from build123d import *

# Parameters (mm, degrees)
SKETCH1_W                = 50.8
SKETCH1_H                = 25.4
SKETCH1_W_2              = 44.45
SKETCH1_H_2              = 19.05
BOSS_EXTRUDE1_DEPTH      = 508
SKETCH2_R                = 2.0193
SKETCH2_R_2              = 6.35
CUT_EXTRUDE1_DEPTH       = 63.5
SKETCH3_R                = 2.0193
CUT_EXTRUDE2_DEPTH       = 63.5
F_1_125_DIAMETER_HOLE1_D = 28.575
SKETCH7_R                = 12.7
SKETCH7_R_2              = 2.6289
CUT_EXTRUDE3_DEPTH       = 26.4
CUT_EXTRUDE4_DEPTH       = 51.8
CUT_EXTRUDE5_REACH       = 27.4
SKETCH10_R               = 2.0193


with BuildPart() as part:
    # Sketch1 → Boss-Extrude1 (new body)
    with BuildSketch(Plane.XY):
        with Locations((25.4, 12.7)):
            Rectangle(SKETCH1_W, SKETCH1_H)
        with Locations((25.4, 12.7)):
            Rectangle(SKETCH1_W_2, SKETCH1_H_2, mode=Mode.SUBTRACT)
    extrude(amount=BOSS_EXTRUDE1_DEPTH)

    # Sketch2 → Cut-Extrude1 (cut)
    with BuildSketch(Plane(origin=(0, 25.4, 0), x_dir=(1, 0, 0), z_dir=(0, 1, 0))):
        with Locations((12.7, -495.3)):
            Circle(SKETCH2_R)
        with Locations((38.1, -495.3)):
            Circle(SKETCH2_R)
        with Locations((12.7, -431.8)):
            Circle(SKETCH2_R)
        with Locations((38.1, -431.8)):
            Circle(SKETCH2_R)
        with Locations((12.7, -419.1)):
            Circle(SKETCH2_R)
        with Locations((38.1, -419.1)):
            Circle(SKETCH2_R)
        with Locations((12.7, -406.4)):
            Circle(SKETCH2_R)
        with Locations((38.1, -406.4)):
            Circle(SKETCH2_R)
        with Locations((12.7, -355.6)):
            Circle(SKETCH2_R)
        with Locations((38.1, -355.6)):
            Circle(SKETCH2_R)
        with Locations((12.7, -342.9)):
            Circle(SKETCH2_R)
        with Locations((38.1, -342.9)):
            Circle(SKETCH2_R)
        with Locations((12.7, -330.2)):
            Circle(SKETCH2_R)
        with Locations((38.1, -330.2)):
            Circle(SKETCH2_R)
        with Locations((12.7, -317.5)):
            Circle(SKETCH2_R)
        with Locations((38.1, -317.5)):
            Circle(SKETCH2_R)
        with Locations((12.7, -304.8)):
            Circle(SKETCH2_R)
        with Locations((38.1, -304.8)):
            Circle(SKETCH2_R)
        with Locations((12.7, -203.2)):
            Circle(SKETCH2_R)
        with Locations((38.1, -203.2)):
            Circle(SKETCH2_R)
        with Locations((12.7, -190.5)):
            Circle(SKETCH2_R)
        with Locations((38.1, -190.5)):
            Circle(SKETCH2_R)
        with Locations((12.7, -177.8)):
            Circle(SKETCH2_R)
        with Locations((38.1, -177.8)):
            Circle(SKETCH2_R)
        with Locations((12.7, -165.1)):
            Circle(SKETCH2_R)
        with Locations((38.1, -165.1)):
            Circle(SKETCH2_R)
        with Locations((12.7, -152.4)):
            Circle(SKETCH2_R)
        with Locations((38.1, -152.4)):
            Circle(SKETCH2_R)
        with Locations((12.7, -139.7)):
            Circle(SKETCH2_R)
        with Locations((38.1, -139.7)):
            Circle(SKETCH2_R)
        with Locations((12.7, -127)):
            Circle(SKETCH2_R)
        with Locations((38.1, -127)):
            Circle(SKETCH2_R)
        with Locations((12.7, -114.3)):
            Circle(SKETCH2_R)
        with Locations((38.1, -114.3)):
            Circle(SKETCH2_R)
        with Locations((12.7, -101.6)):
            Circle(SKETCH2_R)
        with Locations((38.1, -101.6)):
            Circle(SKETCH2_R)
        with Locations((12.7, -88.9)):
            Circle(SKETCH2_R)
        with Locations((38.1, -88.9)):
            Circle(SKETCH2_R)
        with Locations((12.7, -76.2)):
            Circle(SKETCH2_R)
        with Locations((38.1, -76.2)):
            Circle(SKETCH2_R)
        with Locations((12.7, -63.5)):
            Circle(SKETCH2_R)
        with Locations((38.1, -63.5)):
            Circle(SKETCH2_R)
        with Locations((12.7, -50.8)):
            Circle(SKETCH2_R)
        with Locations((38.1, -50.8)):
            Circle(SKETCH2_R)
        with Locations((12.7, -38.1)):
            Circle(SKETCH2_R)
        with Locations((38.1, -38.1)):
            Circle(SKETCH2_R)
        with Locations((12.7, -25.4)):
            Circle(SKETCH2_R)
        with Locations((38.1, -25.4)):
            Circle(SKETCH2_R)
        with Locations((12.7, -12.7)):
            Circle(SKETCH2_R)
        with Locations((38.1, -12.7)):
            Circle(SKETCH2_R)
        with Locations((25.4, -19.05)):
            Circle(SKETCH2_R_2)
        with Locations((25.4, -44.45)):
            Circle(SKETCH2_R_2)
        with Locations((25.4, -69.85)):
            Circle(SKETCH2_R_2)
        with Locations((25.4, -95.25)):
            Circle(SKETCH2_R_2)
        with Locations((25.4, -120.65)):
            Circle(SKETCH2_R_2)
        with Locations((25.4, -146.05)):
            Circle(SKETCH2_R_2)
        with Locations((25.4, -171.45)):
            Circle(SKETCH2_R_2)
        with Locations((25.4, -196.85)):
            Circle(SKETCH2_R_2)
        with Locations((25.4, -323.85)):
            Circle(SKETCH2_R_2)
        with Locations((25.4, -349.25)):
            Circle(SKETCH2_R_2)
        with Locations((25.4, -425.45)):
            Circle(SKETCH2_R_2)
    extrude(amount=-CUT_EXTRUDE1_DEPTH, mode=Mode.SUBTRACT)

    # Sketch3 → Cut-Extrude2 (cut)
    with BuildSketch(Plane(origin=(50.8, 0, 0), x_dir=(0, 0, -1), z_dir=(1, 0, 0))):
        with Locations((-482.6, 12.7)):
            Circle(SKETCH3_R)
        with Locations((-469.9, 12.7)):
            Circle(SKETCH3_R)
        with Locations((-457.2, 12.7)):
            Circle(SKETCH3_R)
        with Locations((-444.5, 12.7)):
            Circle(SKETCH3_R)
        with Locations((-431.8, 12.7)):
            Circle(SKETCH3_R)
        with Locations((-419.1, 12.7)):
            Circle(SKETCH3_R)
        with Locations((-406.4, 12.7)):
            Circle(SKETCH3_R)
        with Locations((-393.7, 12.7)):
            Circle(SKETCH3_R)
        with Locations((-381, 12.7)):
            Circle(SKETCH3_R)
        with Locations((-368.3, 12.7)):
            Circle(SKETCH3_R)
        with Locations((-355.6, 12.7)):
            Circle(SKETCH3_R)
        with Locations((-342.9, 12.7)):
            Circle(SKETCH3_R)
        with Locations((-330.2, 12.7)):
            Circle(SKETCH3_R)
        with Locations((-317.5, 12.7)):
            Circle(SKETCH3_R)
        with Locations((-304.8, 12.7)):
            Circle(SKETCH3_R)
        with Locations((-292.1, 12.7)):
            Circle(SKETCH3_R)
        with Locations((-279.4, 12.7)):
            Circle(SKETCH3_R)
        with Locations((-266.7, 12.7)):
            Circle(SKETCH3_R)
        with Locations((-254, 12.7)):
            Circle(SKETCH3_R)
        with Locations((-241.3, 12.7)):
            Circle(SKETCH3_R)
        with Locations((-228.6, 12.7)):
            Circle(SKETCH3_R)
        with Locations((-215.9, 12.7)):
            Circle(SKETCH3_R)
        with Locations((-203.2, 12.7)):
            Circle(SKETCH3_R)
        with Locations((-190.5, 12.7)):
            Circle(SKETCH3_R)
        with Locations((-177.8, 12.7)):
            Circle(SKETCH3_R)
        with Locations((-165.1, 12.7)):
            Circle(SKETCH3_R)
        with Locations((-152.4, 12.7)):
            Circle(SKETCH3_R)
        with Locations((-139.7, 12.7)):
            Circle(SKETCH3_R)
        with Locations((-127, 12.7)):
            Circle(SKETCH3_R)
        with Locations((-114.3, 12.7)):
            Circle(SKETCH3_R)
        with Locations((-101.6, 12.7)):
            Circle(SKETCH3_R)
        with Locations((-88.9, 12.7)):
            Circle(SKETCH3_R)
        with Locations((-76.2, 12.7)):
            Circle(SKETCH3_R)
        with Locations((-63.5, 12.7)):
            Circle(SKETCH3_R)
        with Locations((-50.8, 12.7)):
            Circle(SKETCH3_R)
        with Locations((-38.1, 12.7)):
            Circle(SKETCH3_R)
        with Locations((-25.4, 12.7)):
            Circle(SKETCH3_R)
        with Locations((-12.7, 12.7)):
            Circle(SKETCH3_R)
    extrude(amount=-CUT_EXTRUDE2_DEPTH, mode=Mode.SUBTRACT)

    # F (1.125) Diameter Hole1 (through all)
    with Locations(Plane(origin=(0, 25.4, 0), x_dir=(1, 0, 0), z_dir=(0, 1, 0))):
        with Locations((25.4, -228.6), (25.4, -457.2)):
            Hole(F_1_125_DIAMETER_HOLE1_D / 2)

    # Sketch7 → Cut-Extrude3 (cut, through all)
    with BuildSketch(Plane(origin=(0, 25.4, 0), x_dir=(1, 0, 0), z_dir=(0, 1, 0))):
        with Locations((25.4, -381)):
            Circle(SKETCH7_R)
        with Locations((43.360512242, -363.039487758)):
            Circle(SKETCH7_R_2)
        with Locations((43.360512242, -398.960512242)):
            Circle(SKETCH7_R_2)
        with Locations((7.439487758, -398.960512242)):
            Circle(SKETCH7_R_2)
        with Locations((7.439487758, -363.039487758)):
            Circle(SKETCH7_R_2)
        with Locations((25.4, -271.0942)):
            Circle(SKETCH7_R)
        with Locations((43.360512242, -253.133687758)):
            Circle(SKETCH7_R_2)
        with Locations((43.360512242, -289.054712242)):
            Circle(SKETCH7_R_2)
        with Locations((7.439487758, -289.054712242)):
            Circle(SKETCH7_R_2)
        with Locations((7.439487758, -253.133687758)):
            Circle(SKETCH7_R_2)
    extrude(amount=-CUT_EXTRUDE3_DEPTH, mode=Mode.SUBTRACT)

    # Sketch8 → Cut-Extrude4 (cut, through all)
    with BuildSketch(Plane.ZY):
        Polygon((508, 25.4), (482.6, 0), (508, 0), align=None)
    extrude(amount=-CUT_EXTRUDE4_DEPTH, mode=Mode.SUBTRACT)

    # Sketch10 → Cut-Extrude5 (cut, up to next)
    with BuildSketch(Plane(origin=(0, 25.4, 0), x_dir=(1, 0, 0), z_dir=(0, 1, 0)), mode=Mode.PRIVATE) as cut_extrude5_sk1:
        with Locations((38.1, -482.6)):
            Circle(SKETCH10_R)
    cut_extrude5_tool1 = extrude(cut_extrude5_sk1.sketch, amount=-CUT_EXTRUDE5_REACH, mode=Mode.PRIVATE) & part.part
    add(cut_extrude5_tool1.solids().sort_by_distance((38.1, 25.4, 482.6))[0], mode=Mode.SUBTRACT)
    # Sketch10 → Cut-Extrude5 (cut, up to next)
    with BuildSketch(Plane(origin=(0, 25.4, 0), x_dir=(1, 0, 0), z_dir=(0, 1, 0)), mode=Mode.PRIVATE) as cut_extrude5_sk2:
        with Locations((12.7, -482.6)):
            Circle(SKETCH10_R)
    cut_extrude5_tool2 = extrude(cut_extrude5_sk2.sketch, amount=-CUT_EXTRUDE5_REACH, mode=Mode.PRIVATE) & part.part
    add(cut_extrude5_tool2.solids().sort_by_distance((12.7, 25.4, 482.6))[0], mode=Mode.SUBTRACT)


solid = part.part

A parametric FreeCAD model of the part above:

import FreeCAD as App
import Part
import Sketcher
Q = App.Units.Quantity

doc = App.newDocument("Part")
body = doc.addObject("PartDesign::Body", "Body")

sketch1 = body.newObject("Sketcher::SketchObject", "Sketch")
sketch1.AttachmentSupport = (doc.getObject("XY_Plane"), [""])
sketch1.MapMode = "FlatFace"
sketch1.addGeometry([
    Part.LineSegment(App.Vector(0, 25, 0), App.Vector(0, 0, 0)),
    Part.LineSegment(App.Vector(0, 0, 0), App.Vector(51, 0, 0)),
    Part.LineSegment(App.Vector(51, 0, 0), App.Vector(51, 25, 0)),
    Part.LineSegment(App.Vector(51, 25, 0), App.Vector(0, 25, 0)),
    Part.LineSegment(App.Vector(48, 3, 0), App.Vector(3, 3, 0)),
    Part.LineSegment(App.Vector(3, 3, 0), App.Vector(3, 22, 0)),
    Part.LineSegment(App.Vector(3, 22, 0), App.Vector(48, 22, 0)),
    Part.LineSegment(App.Vector(48, 22, 0), App.Vector(48, 3, 0)),
], False)
sketch1.addConstraint([
    Sketcher.Constraint("Coincident", 0, 2, 1, 1),
    Sketcher.Constraint("Coincident", 1, 2, 2, 1),
    Sketcher.Constraint("Coincident", 2, 2, 3, 1),
    Sketcher.Constraint("Coincident", 3, 2, 0, 1),
    Sketcher.Constraint("Coincident", 4, 2, 5, 1),
    Sketcher.Constraint("Coincident", 5, 2, 6, 1),
    Sketcher.Constraint("Coincident", 6, 2, 7, 1),
    Sketcher.Constraint("Coincident", 7, 2, 4, 1),
    Sketcher.Constraint("Vertical", 0),
    Sketcher.Constraint("Horizontal", 1),
    Sketcher.Constraint("Vertical", 2),
    Sketcher.Constraint("Horizontal", 3),
    Sketcher.Constraint("Horizontal", 4),
    Sketcher.Constraint("Vertical", 5),
    Sketcher.Constraint("Horizontal", 6),
    Sketcher.Constraint("Vertical", 7),
    Sketcher.Constraint("Coincident", 0, 2, -1, 1),
    Sketcher.Constraint("DistanceX", 1, 1, 1, 2, Q("2 in")),
    Sketcher.Constraint("DistanceY", 0, 2, 0, 1, Q("1 in")),
    Sketcher.Constraint("DistanceX", 4, 2, 4, 1, Q("1.75 in")),
    Sketcher.Constraint("DistanceY", 5, 1, 5, 2, Q("0.75 in")),
    Sketcher.Constraint("DistanceX", -1, 1, 4, 2, Q("0.125 in")),
    Sketcher.Constraint("DistanceY", -1, 1, 4, 2, Q("0.125 in")),
])
pad1 = body.newObject("PartDesign::Pad", "Pad")
pad1.Profile = sketch1
pad1.Length = Q("20 in")

sketch2 = body.newObject("Sketcher::SketchObject", "Sketch001")
sketch2.AttachmentSupport = (doc.getObject("XZ_Plane"), [""])
sketch2.MapMode = "FlatFace"
sketch2.AttachmentOffset = App.Placement(App.Vector(0, 0, -1 * 25.4), App.Rotation())
sketch2.addGeometry([
    Part.Circle(App.Vector(12.7, 495.3, 0), App.Vector(0, 0, 1), 2),
    Part.Circle(App.Vector(38.1, 495.3, 0), App.Vector(0, 0, 1), 2),
    Part.Circle(App.Vector(12.7, 431.8, 0), App.Vector(0, 0, 1), 2),
    Part.Circle(App.Vector(38.1, 431.8, 0), App.Vector(0, 0, 1), 2),
    Part.Circle(App.Vector(12.7, 419.1, 0), App.Vector(0, 0, 1), 2),
    Part.Circle(App.Vector(38.1, 419.1, 0), App.Vector(0, 0, 1), 2),
    Part.Circle(App.Vector(12.7, 406.4, 0), App.Vector(0, 0, 1), 2),
    Part.Circle(App.Vector(38.1, 406.4, 0), App.Vector(0, 0, 1), 2),
    Part.Circle(App.Vector(12.7, 355.6, 0), App.Vector(0, 0, 1), 2),
    Part.Circle(App.Vector(38.1, 355.6, 0), App.Vector(0, 0, 1), 2),
    Part.Circle(App.Vector(12.7, 342.9, 0), App.Vector(0, 0, 1), 2),
    Part.Circle(App.Vector(38.1, 342.9, 0), App.Vector(0, 0, 1), 2),
    Part.Circle(App.Vector(12.7, 330.2, 0), App.Vector(0, 0, 1), 2),
    Part.Circle(App.Vector(38.1, 330.2, 0), App.Vector(0, 0, 1), 2),
    Part.Circle(App.Vector(12.7, 317.5, 0), App.Vector(0, 0, 1), 2),
    Part.Circle(App.Vector(38.1, 317.5, 0), App.Vector(0, 0, 1), 2),
    Part.Circle(App.Vector(12.7, 304.8, 0), App.Vector(0, 0, 1), 2),
    Part.Circle(App.Vector(38.1, 304.8, 0), App.Vector(0, 0, 1), 2),
    Part.Circle(App.Vector(12.7, 203.2, 0), App.Vector(0, 0, 1), 2),
    Part.Circle(App.Vector(38.1, 203.2, 0), App.Vector(0, 0, 1), 2),
    Part.Circle(App.Vector(12.7, 190.5, 0), App.Vector(0, 0, 1), 2),
    Part.Circle(App.Vector(38.1, 190.5, 0), App.Vector(0, 0, 1), 2),
    Part.Circle(App.Vector(12.7, 177.8, 0), App.Vector(0, 0, 1), 2),
    Part.Circle(App.Vector(38.1, 177.8, 0), App.Vector(0, 0, 1), 2),
    Part.Circle(App.Vector(12.7, 165.1, 0), App.Vector(0, 0, 1), 2),
    Part.Circle(App.Vector(38.1, 165.1, 0), App.Vector(0, 0, 1), 2),
    Part.Circle(App.Vector(12.7, 152.4, 0), App.Vector(0, 0, 1), 2),
    Part.Circle(App.Vector(38.1, 152.4, 0), App.Vector(0, 0, 1), 2),
    Part.Circle(App.Vector(12.7, 139.7, 0), App.Vector(0, 0, 1), 2),
    Part.Circle(App.Vector(38.1, 139.7, 0), App.Vector(0, 0, 1), 2),
    Part.Circle(App.Vector(12.7, 127, 0), App.Vector(0, 0, 1), 2),
    Part.Circle(App.Vector(38.1, 127, 0), App.Vector(0, 0, 1), 2),
    Part.Circle(App.Vector(12.7, 114.3, 0), App.Vector(0, 0, 1), 2),
    Part.Circle(App.Vector(38.1, 114.3, 0), App.Vector(0, 0, 1), 2),
    Part.Circle(App.Vector(12.7, 101.6, 0), App.Vector(0, 0, 1), 2),
    Part.Circle(App.Vector(38.1, 101.6, 0), App.Vector(0, 0, 1), 2),
    Part.Circle(App.Vector(12.7, 88.9, 0), App.Vector(0, 0, 1), 2),
    Part.Circle(App.Vector(38.1, 88.9, 0), App.Vector(0, 0, 1), 2),
    Part.Circle(App.Vector(12.7, 76.2, 0), App.Vector(0, 0, 1), 2),
    Part.Circle(App.Vector(38.1, 76.2, 0), App.Vector(0, 0, 1), 2),
    Part.Circle(App.Vector(12.7, 63.5, 0), App.Vector(0, 0, 1), 2),
    Part.Circle(App.Vector(38.1, 63.5, 0), App.Vector(0, 0, 1), 2),
    Part.Circle(App.Vector(12.7, 50.8, 0), App.Vector(0, 0, 1), 2),
    Part.Circle(App.Vector(38.1, 50.8, 0), App.Vector(0, 0, 1), 2),
    Part.Circle(App.Vector(12.7, 38.1, 0), App.Vector(0, 0, 1), 2),
    Part.Circle(App.Vector(38.1, 38.1, 0), App.Vector(0, 0, 1), 2),
    Part.Circle(App.Vector(12.7, 25.4, 0), App.Vector(0, 0, 1), 2),
    Part.Circle(App.Vector(38.1, 25.4, 0), App.Vector(0, 0, 1), 2),
    Part.Circle(App.Vector(12.7, 12.7, 0), App.Vector(0, 0, 1), 2),
    Part.Circle(App.Vector(38.1, 12.7, 0), App.Vector(0, 0, 1), 2),
    Part.Circle(App.Vector(25.4, 19.1, 0), App.Vector(0, 0, 1), 6.3),
    Part.Circle(App.Vector(25.4, 44.5, 0), App.Vector(0, 0, 1), 6.3),
    Part.Circle(App.Vector(25.4, 69.8, 0), App.Vector(0, 0, 1), 6.3),
    Part.Circle(App.Vector(25.4, 95.2, 0), App.Vector(0, 0, 1), 6.3),
    Part.Circle(App.Vector(25.4, 120.7, 0), App.Vector(0, 0, 1), 6.3),
    Part.Circle(App.Vector(25.4, 146.1, 0), App.Vector(0, 0, 1), 6.3),
    Part.Circle(App.Vector(25.4, 171.4, 0), App.Vector(0, 0, 1), 6.3),
    Part.Circle(App.Vector(25.4, 196.8, 0), App.Vector(0, 0, 1), 6.3),
    Part.Circle(App.Vector(25.4, 323.9, 0), App.Vector(0, 0, 1), 6.3),
    Part.Circle(App.Vector(25.4, 349.2, 0), App.Vector(0, 0, 1), 6.3),
    Part.Circle(App.Vector(25.4, 425.4, 0), App.Vector(0, 0, 1), 6.3),
], False)
sketch2.addConstraint([
    Sketcher.Constraint("Equal", 0, 1),
    Sketcher.Constraint("Equal", 1, 2),
    Sketcher.Constraint("Equal", 2, 3),
    Sketcher.Constraint("Equal", 3, 4),
    Sketcher.Constraint("Equal", 4, 5),
    Sketcher.Constraint("Equal", 5, 6),
    Sketcher.Constraint("Equal", 6, 7),
    Sketcher.Constraint("Equal", 7, 8),
    Sketcher.Constraint("Equal", 8, 9),
    Sketcher.Constraint("Equal", 9, 10),
    Sketcher.Constraint("Equal", 10, 11),
    Sketcher.Constraint("Equal", 11, 12),
    Sketcher.Constraint("Equal", 12, 13),
    Sketcher.Constraint("Equal", 13, 14),
    Sketcher.Constraint("Equal", 14, 15),
    Sketcher.Constraint("Equal", 15, 16),
    Sketcher.Constraint("Equal", 16, 17),
    Sketcher.Constraint("Equal", 17, 18),
    Sketcher.Constraint("Equal", 18, 19),
    Sketcher.Constraint("Equal", 19, 20),
    Sketcher.Constraint("Equal", 20, 21),
    Sketcher.Constraint("Equal", 21, 22),
    Sketcher.Constraint("Equal", 22, 23),
    Sketcher.Constraint("Equal", 23, 24),
    Sketcher.Constraint("Equal", 24, 25),
    Sketcher.Constraint("Equal", 25, 26),
    Sketcher.Constraint("Equal", 26, 27),
    Sketcher.Constraint("Equal", 27, 28),
    Sketcher.Constraint("Equal", 28, 29),
    Sketcher.Constraint("Equal", 29, 30),
    Sketcher.Constraint("Equal", 30, 31),
    Sketcher.Constraint("Equal", 31, 32),
    Sketcher.Constraint("Equal", 32, 33),
    Sketcher.Constraint("Equal", 33, 34),
    Sketcher.Constraint("Equal", 34, 35),
    Sketcher.Constraint("Equal", 35, 36),
    Sketcher.Constraint("Equal", 36, 37),
    Sketcher.Constraint("Equal", 37, 38),
    Sketcher.Constraint("Equal", 38, 39),
    Sketcher.Constraint("Equal", 39, 40),
    Sketcher.Constraint("Equal", 40, 41),
    Sketcher.Constraint("Equal", 41, 42),
    Sketcher.Constraint("Equal", 42, 43),
    Sketcher.Constraint("Equal", 43, 44),
    Sketcher.Constraint("Equal", 44, 45),
    Sketcher.Constraint("Equal", 45, 46),
    Sketcher.Constraint("Equal", 46, 47),
    Sketcher.Constraint("Equal", 47, 48),
    Sketcher.Constraint("Equal", 48, 49),
    Sketcher.Constraint("Equal", 50, 51),
    Sketcher.Constraint("Equal", 51, 52),
    Sketcher.Constraint("Equal", 52, 53),
    Sketcher.Constraint("Equal", 53, 54),
    Sketcher.Constraint("Equal", 54, 55),
    Sketcher.Constraint("Equal", 55, 56),
    Sketcher.Constraint("Equal", 56, 57),
    Sketcher.Constraint("Equal", 57, 58),
    Sketcher.Constraint("Equal", 58, 59),
    Sketcher.Constraint("Equal", 59, 60),
    Sketcher.Constraint("Horizontal", 0, 3, 1, 3),
    Sketcher.Constraint("Horizontal", 2, 3, 3, 3),
    Sketcher.Constraint("Horizontal", 4, 3, 5, 3),
    Sketcher.Constraint("Horizontal", 6, 3, 7, 3),
    Sketcher.Constraint("Horizontal", 8, 3, 9, 3),
    Sketcher.Constraint("Horizontal", 10, 3, 11, 3),
    Sketcher.Constraint("Horizontal", 12, 3, 13, 3),
    Sketcher.Constraint("Horizontal", 14, 3, 15, 3),
    Sketcher.Constraint("Horizontal", 16, 3, 17, 3),
    Sketcher.Constraint("Horizontal", 18, 3, 19, 3),
    Sketcher.Constraint("Horizontal", 20, 3, 21, 3),
    Sketcher.Constraint("Horizontal", 22, 3, 23, 3),
    Sketcher.Constraint("Horizontal", 24, 3, 25, 3),
    Sketcher.Constraint("Horizontal", 26, 3, 27, 3),
    Sketcher.Constraint("Horizontal", 28, 3, 29, 3),
    Sketcher.Constraint("Horizontal", 30, 3, 31, 3),
    Sketcher.Constraint("Horizontal", 32, 3, 33, 3),
    Sketcher.Constraint("Horizontal", 34, 3, 35, 3),
    Sketcher.Constraint("Horizontal", 36, 3, 37, 3),
    Sketcher.Constraint("Horizontal", 38, 3, 39, 3),
    Sketcher.Constraint("Horizontal", 40, 3, 41, 3),
    Sketcher.Constraint("Horizontal", 42, 3, 43, 3),
    Sketcher.Constraint("Horizontal", 44, 3, 45, 3),
    Sketcher.Constraint("Horizontal", 46, 3, 47, 3),
    Sketcher.Constraint("Horizontal", 48, 3, 49, 3),
    Sketcher.Constraint("Vertical", 0, 3, 2, 3),
    Sketcher.Constraint("Vertical", 1, 3, 3, 3),
    Sketcher.Constraint("Vertical", 2, 3, 4, 3),
    Sketcher.Constraint("Vertical", 3, 3, 5, 3),
    Sketcher.Constraint("Vertical", 4, 3, 6, 3),
    Sketcher.Constraint("Vertical", 5, 3, 7, 3),
    Sketcher.Constraint("Vertical", 6, 3, 8, 3),
    Sketcher.Constraint("Vertical", 7, 3, 9, 3),
    Sketcher.Constraint("Vertical", 8, 3, 10, 3),
    Sketcher.Constraint("Vertical", 9, 3, 11, 3),
    Sketcher.Constraint("Vertical", 10, 3, 12, 3),
    Sketcher.Constraint("Vertical", 11, 3, 13, 3),
    Sketcher.Constraint("Vertical", 12, 3, 14, 3),
    Sketcher.Constraint("Vertical", 13, 3, 15, 3),
    Sketcher.Constraint("Vertical", 14, 3, 16, 3),
    Sketcher.Constraint("Vertical", 15, 3, 17, 3),
    Sketcher.Constraint("Vertical", 16, 3, 18, 3),
    Sketcher.Constraint("Vertical", 17, 3, 19, 3),
    Sketcher.Constraint("Vertical", 18, 3, 20, 3),
    Sketcher.Constraint("Vertical", 19, 3, 21, 3),
    Sketcher.Constraint("Vertical", 20, 3, 22, 3),
    Sketcher.Constraint("Vertical", 21, 3, 23, 3),
    Sketcher.Constraint("Vertical", 22, 3, 24, 3),
    Sketcher.Constraint("Vertical", 23, 3, 25, 3),
    Sketcher.Constraint("Vertical", 24, 3, 26, 3),
    Sketcher.Constraint("Vertical", 25, 3, 27, 3),
    Sketcher.Constraint("Vertical", 26, 3, 28, 3),
    Sketcher.Constraint("Vertical", 27, 3, 29, 3),
    Sketcher.Constraint("Vertical", 28, 3, 30, 3),
    Sketcher.Constraint("Vertical", 29, 3, 31, 3),
    Sketcher.Constraint("Vertical", 30, 3, 32, 3),
    Sketcher.Constraint("Vertical", 31, 3, 33, 3),
    Sketcher.Constraint("Vertical", 32, 3, 34, 3),
    Sketcher.Constraint("Vertical", 33, 3, 35, 3),
    Sketcher.Constraint("Vertical", 34, 3, 36, 3),
    Sketcher.Constraint("Vertical", 35, 3, 37, 3),
    Sketcher.Constraint("Vertical", 36, 3, 38, 3),
    Sketcher.Constraint("Vertical", 37, 3, 39, 3),
    Sketcher.Constraint("Vertical", 38, 3, 40, 3),
    Sketcher.Constraint("Vertical", 39, 3, 41, 3),
    Sketcher.Constraint("Vertical", 40, 3, 42, 3),
    Sketcher.Constraint("Vertical", 41, 3, 43, 3),
    Sketcher.Constraint("Vertical", 42, 3, 44, 3),
    Sketcher.Constraint("Vertical", 43, 3, 45, 3),
    Sketcher.Constraint("Vertical", 44, 3, 46, 3),
    Sketcher.Constraint("Vertical", 45, 3, 47, 3),
    Sketcher.Constraint("Vertical", 46, 3, 48, 3),
    Sketcher.Constraint("Vertical", 47, 3, 49, 3),
    Sketcher.Constraint("Vertical", 50, 3, 51, 3),
    Sketcher.Constraint("Vertical", 51, 3, 52, 3),
    Sketcher.Constraint("Vertical", 52, 3, 53, 3),
    Sketcher.Constraint("Vertical", 53, 3, 54, 3),
    Sketcher.Constraint("Vertical", 54, 3, 55, 3),
    Sketcher.Constraint("Vertical", 55, 3, 56, 3),
    Sketcher.Constraint("Vertical", 56, 3, 57, 3),
    Sketcher.Constraint("Vertical", 57, 3, 58, 3),
    Sketcher.Constraint("Vertical", 58, 3, 59, 3),
    Sketcher.Constraint("Vertical", 59, 3, 60, 3),
    Sketcher.Constraint("Diameter", 50, Q("0.5 in")),
    Sketcher.Constraint("Diameter", 0, Q("0.159 in")),
    Sketcher.Constraint("DistanceY", -1, 1, 2, 3, Q("17 in")),
    Sketcher.Constraint("DistanceY", -1, 1, 6, 3, Q("16 in")),
    Sketcher.Constraint("DistanceY", -1, 1, 8, 3, Q("14 in")),
    Sketcher.Constraint("DistanceY", -1, 1, 12, 3, Q("13 in")),
    Sketcher.Constraint("DistanceY", -1, 1, 16, 3, Q("12 in")),
    Sketcher.Constraint("DistanceY", -1, 1, 18, 3, Q("8 in")),
    Sketcher.Constraint("DistanceY", -1, 1, 22, 3, Q("7 in")),
    Sketcher.Constraint("DistanceY", -1, 1, 26, 3, Q("6 in")),
    Sketcher.Constraint("DistanceY", -1, 1, 30, 3, Q("5 in")),
    Sketcher.Constraint("DistanceY", -1, 1, 34, 3, Q("4 in")),
    Sketcher.Constraint("DistanceY", -1, 1, 38, 3, Q("3 in")),
    Sketcher.Constraint("DistanceY", -1, 1, 42, 3, Q("2 in")),
    Sketcher.Constraint("DistanceY", -1, 1, 46, 3, Q("1 in")),
    Sketcher.Constraint("DistanceX", -1, 1, 50, 3, Q("1 in")),
    Sketcher.Constraint("DistanceX", -1, 1, 0, 3, Q("0.5 in")),
    Sketcher.Constraint("DistanceY", -1, 1, 0, 3, Q("19.5 in")),
    Sketcher.Constraint("DistanceX", -1, 1, 1, 3, Q("1.5 in")),
    Sketcher.Constraint("DistanceY", -1, 1, 4, 3, Q("16.5 in")),
    Sketcher.Constraint("DistanceY", -1, 1, 10, 3, Q("13.5 in")),
    Sketcher.Constraint("DistanceY", -1, 1, 14, 3, Q("12.5 in")),
    Sketcher.Constraint("DistanceY", -1, 1, 20, 3, Q("7.5 in")),
    Sketcher.Constraint("DistanceY", -1, 1, 24, 3, Q("6.5 in")),
    Sketcher.Constraint("DistanceY", -1, 1, 28, 3, Q("5.5 in")),
    Sketcher.Constraint("DistanceY", -1, 1, 32, 3, Q("4.5 in")),
    Sketcher.Constraint("DistanceY", -1, 1, 36, 3, Q("3.5 in")),
    Sketcher.Constraint("DistanceY", -1, 1, 40, 3, Q("2.5 in")),
    Sketcher.Constraint("DistanceY", -1, 1, 44, 3, Q("1.5 in")),
    Sketcher.Constraint("DistanceY", -1, 1, 48, 3, Q("0.5 in")),
    Sketcher.Constraint("DistanceY", -1, 1, 50, 3, Q("0.75 in")),
    Sketcher.Constraint("DistanceY", -1, 1, 51, 3, Q("1.75 in")),
    Sketcher.Constraint("DistanceY", -1, 1, 52, 3, Q("2.75 in")),
    Sketcher.Constraint("DistanceY", -1, 1, 53, 3, Q("3.75 in")),
    Sketcher.Constraint("DistanceY", -1, 1, 54, 3, Q("4.75 in")),
    Sketcher.Constraint("DistanceY", -1, 1, 55, 3, Q("5.75 in")),
    Sketcher.Constraint("DistanceY", -1, 1, 56, 3, Q("6.75 in")),
    Sketcher.Constraint("DistanceY", -1, 1, 57, 3, Q("7.75 in")),
    Sketcher.Constraint("DistanceY", -1, 1, 58, 3, Q("12.75 in")),
    Sketcher.Constraint("DistanceY", -1, 1, 59, 3, Q("13.75 in")),
    Sketcher.Constraint("DistanceY", -1, 1, 60, 3, Q("16.75 in")),
])
pocket1 = body.newObject("PartDesign::Pocket", "Pocket")
pocket1.Profile = sketch2
pocket1.Length = Q("2.5 in")
pocket1.Reversed = True

sketch3 = body.newObject("Sketcher::SketchObject", "Sketch002")
sketch3.AttachmentSupport = (doc.getObject("YZ_Plane"), [""])
sketch3.MapMode = "FlatFace"
sketch3.AttachmentOffset = App.Placement(App.Vector(0, 0, 2 * 25.4), App.Rotation())
sketch3.addGeometry([
    Part.Circle(App.Vector(12.7, 482.6, 0), App.Vector(0, 0, 1), 2),
    Part.Circle(App.Vector(12.7, 469.9, 0), App.Vector(0, 0, 1), 2),
    Part.Circle(App.Vector(12.7, 457.2, 0), App.Vector(0, 0, 1), 2),
    Part.Circle(App.Vector(12.7, 444.5, 0), App.Vector(0, 0, 1), 2),
    Part.Circle(App.Vector(12.7, 431.8, 0), App.Vector(0, 0, 1), 2),
    Part.Circle(App.Vector(12.7, 419.1, 0), App.Vector(0, 0, 1), 2),
    Part.Circle(App.Vector(12.7, 406.4, 0), App.Vector(0, 0, 1), 2),
    Part.Circle(App.Vector(12.7, 393.7, 0), App.Vector(0, 0, 1), 2),
    Part.Circle(App.Vector(12.7, 381, 0), App.Vector(0, 0, 1), 2),
    Part.Circle(App.Vector(12.7, 368.3, 0), App.Vector(0, 0, 1), 2),
    Part.Circle(App.Vector(12.7, 355.6, 0), App.Vector(0, 0, 1), 2),
    Part.Circle(App.Vector(12.7, 342.9, 0), App.Vector(0, 0, 1), 2),
    Part.Circle(App.Vector(12.7, 330.2, 0), App.Vector(0, 0, 1), 2),
    Part.Circle(App.Vector(12.7, 317.5, 0), App.Vector(0, 0, 1), 2),
    Part.Circle(App.Vector(12.7, 304.8, 0), App.Vector(0, 0, 1), 2),
    Part.Circle(App.Vector(12.7, 292.1, 0), App.Vector(0, 0, 1), 2),
    Part.Circle(App.Vector(12.7, 279.4, 0), App.Vector(0, 0, 1), 2),
    Part.Circle(App.Vector(12.7, 266.7, 0), App.Vector(0, 0, 1), 2),
    Part.Circle(App.Vector(12.7, 254, 0), App.Vector(0, 0, 1), 2),
    Part.Circle(App.Vector(12.7, 241.3, 0), App.Vector(0, 0, 1), 2),
    Part.Circle(App.Vector(12.7, 228.6, 0), App.Vector(0, 0, 1), 2),
    Part.Circle(App.Vector(12.7, 215.9, 0), App.Vector(0, 0, 1), 2),
    Part.Circle(App.Vector(12.7, 203.2, 0), App.Vector(0, 0, 1), 2),
    Part.Circle(App.Vector(12.7, 190.5, 0), App.Vector(0, 0, 1), 2),
    Part.Circle(App.Vector(12.7, 177.8, 0), App.Vector(0, 0, 1), 2),
    Part.Circle(App.Vector(12.7, 165.1, 0), App.Vector(0, 0, 1), 2),
    Part.Circle(App.Vector(12.7, 152.4, 0), App.Vector(0, 0, 1), 2),
    Part.Circle(App.Vector(12.7, 139.7, 0), App.Vector(0, 0, 1), 2),
    Part.Circle(App.Vector(12.7, 127, 0), App.Vector(0, 0, 1), 2),
    Part.Circle(App.Vector(12.7, 114.3, 0), App.Vector(0, 0, 1), 2),
    Part.Circle(App.Vector(12.7, 101.6, 0), App.Vector(0, 0, 1), 2),
    Part.Circle(App.Vector(12.7, 88.9, 0), App.Vector(0, 0, 1), 2),
    Part.Circle(App.Vector(12.7, 76.2, 0), App.Vector(0, 0, 1), 2),
    Part.Circle(App.Vector(12.7, 63.5, 0), App.Vector(0, 0, 1), 2),
    Part.Circle(App.Vector(12.7, 50.8, 0), App.Vector(0, 0, 1), 2),
    Part.Circle(App.Vector(12.7, 38.1, 0), App.Vector(0, 0, 1), 2),
    Part.Circle(App.Vector(12.7, 25.4, 0), App.Vector(0, 0, 1), 2),
    Part.Circle(App.Vector(12.7, 12.7, 0), App.Vector(0, 0, 1), 2),
], False)
sketch3.addConstraint([
    Sketcher.Constraint("Equal", 0, 1),
    Sketcher.Constraint("Equal", 1, 2),
    Sketcher.Constraint("Equal", 2, 3),
    Sketcher.Constraint("Equal", 3, 4),
    Sketcher.Constraint("Equal", 4, 5),
    Sketcher.Constraint("Equal", 5, 6),
    Sketcher.Constraint("Equal", 6, 7),
    Sketcher.Constraint("Equal", 7, 8),
    Sketcher.Constraint("Equal", 8, 9),
    Sketcher.Constraint("Equal", 9, 10),
    Sketcher.Constraint("Equal", 10, 11),
    Sketcher.Constraint("Equal", 11, 12),
    Sketcher.Constraint("Equal", 12, 13),
    Sketcher.Constraint("Equal", 13, 14),
    Sketcher.Constraint("Equal", 14, 15),
    Sketcher.Constraint("Equal", 15, 16),
    Sketcher.Constraint("Equal", 16, 17),
    Sketcher.Constraint("Equal", 17, 18),
    Sketcher.Constraint("Equal", 18, 19),
    Sketcher.Constraint("Equal", 19, 20),
    Sketcher.Constraint("Equal", 20, 21),
    Sketcher.Constraint("Equal", 21, 22),
    Sketcher.Constraint("Equal", 22, 23),
    Sketcher.Constraint("Equal", 23, 24),
    Sketcher.Constraint("Equal", 24, 25),
    Sketcher.Constraint("Equal", 25, 26),
    Sketcher.Constraint("Equal", 26, 27),
    Sketcher.Constraint("Equal", 27, 28),
    Sketcher.Constraint("Equal", 28, 29),
    Sketcher.Constraint("Equal", 29, 30),
    Sketcher.Constraint("Equal", 30, 31),
    Sketcher.Constraint("Equal", 31, 32),
    Sketcher.Constraint("Equal", 32, 33),
    Sketcher.Constraint("Equal", 33, 34),
    Sketcher.Constraint("Equal", 34, 35),
    Sketcher.Constraint("Equal", 35, 36),
    Sketcher.Constraint("Equal", 36, 37),
    Sketcher.Constraint("Vertical", 0, 3, 1, 3),
    Sketcher.Constraint("Vertical", 1, 3, 2, 3),
    Sketcher.Constraint("Vertical", 2, 3, 3, 3),
    Sketcher.Constraint("Vertical", 3, 3, 4, 3),
    Sketcher.Constraint("Vertical", 4, 3, 5, 3),
    Sketcher.Constraint("Vertical", 5, 3, 6, 3),
    Sketcher.Constraint("Vertical", 6, 3, 7, 3),
    Sketcher.Constraint("Vertical", 7, 3, 8, 3),
    Sketcher.Constraint("Vertical", 8, 3, 9, 3),
    Sketcher.Constraint("Vertical", 9, 3, 10, 3),
    Sketcher.Constraint("Vertical", 10, 3, 11, 3),
    Sketcher.Constraint("Vertical", 11, 3, 12, 3),
    Sketcher.Constraint("Vertical", 12, 3, 13, 3),
    Sketcher.Constraint("Vertical", 13, 3, 14, 3),
    Sketcher.Constraint("Vertical", 14, 3, 15, 3),
    Sketcher.Constraint("Vertical", 15, 3, 16, 3),
    Sketcher.Constraint("Vertical", 16, 3, 17, 3),
    Sketcher.Constraint("Vertical", 17, 3, 18, 3),
    Sketcher.Constraint("Vertical", 18, 3, 19, 3),
    Sketcher.Constraint("Vertical", 19, 3, 20, 3),
    Sketcher.Constraint("Vertical", 20, 3, 21, 3),
    Sketcher.Constraint("Vertical", 21, 3, 22, 3),
    Sketcher.Constraint("Vertical", 22, 3, 23, 3),
    Sketcher.Constraint("Vertical", 23, 3, 24, 3),
    Sketcher.Constraint("Vertical", 24, 3, 25, 3),
    Sketcher.Constraint("Vertical", 25, 3, 26, 3),
    Sketcher.Constraint("Vertical", 26, 3, 27, 3),
    Sketcher.Constraint("Vertical", 27, 3, 28, 3),
    Sketcher.Constraint("Vertical", 28, 3, 29, 3),
    Sketcher.Constraint("Vertical", 29, 3, 30, 3),
    Sketcher.Constraint("Vertical", 30, 3, 31, 3),
    Sketcher.Constraint("Vertical", 31, 3, 32, 3),
    Sketcher.Constraint("Vertical", 32, 3, 33, 3),
    Sketcher.Constraint("Vertical", 33, 3, 34, 3),
    Sketcher.Constraint("Vertical", 34, 3, 35, 3),
    Sketcher.Constraint("Vertical", 35, 3, 36, 3),
    Sketcher.Constraint("Vertical", 36, 3, 37, 3),
    Sketcher.Constraint("Diameter", 0, Q("0.159 in")),
    Sketcher.Constraint("DistanceY", -1, 1, 0, 3, Q("19 in")),
    Sketcher.Constraint("DistanceY", -1, 1, 2, 3, Q("18 in")),
    Sketcher.Constraint("DistanceY", -1, 1, 4, 3, Q("17 in")),
    Sketcher.Constraint("DistanceY", -1, 1, 6, 3, Q("16 in")),
    Sketcher.Constraint("DistanceY", -1, 1, 8, 3, Q("15 in")),
    Sketcher.Constraint("DistanceY", -1, 1, 10, 3, Q("14 in")),
    Sketcher.Constraint("DistanceY", -1, 1, 12, 3, Q("13 in")),
    Sketcher.Constraint("DistanceY", -1, 1, 14, 3, Q("12 in")),
    Sketcher.Constraint("DistanceY", -1, 1, 16, 3, Q("11 in")),
    Sketcher.Constraint("DistanceY", -1, 1, 18, 3, Q("10 in")),
    Sketcher.Constraint("DistanceY", -1, 1, 20, 3, Q("9 in")),
    Sketcher.Constraint("DistanceY", -1, 1, 22, 3, Q("8 in")),
    Sketcher.Constraint("DistanceY", -1, 1, 24, 3, Q("7 in")),
    Sketcher.Constraint("DistanceY", -1, 1, 26, 3, Q("6 in")),
    Sketcher.Constraint("DistanceY", -1, 1, 28, 3, Q("5 in")),
    Sketcher.Constraint("DistanceY", -1, 1, 30, 3, Q("4 in")),
    Sketcher.Constraint("DistanceY", -1, 1, 32, 3, Q("3 in")),
    Sketcher.Constraint("DistanceY", -1, 1, 34, 3, Q("2 in")),
    Sketcher.Constraint("DistanceY", -1, 1, 36, 3, Q("1 in")),
    Sketcher.Constraint("DistanceY", 3, 3, 1, 3, Q("1 in")),
    Sketcher.Constraint("DistanceY", 5, 3, 3, 3, Q("1 in")),
    Sketcher.Constraint("DistanceY", 7, 3, 5, 3, Q("1 in")),
    Sketcher.Constraint("DistanceY", 9, 3, 7, 3, Q("1 in")),
    Sketcher.Constraint("DistanceY", 11, 3, 9, 3, Q("1 in")),
    Sketcher.Constraint("DistanceY", 13, 3, 11, 3, Q("1 in")),
    Sketcher.Constraint("DistanceY", 15, 3, 13, 3, Q("1 in")),
    Sketcher.Constraint("DistanceY", 17, 3, 15, 3, Q("1 in")),
    Sketcher.Constraint("DistanceY", 19, 3, 17, 3, Q("1 in")),
    Sketcher.Constraint("DistanceY", 21, 3, 19, 3, Q("1 in")),
    Sketcher.Constraint("DistanceY", 23, 3, 21, 3, Q("1 in")),
    Sketcher.Constraint("DistanceY", 25, 3, 23, 3, Q("1 in")),
    Sketcher.Constraint("DistanceY", 27, 3, 25, 3, Q("1 in")),
    Sketcher.Constraint("DistanceY", 29, 3, 27, 3, Q("1 in")),
    Sketcher.Constraint("DistanceY", 31, 3, 29, 3, Q("1 in")),
    Sketcher.Constraint("DistanceY", 33, 3, 31, 3, Q("1 in")),
    Sketcher.Constraint("DistanceY", 35, 3, 33, 3, Q("1 in")),
    Sketcher.Constraint("DistanceY", 37, 3, 35, 3, Q("1 in")),
    Sketcher.Constraint("DistanceX", -1, 1, 0, 3, Q("0.5 in")),
    Sketcher.Constraint("DistanceY", -1, 1, 1, 3, Q("18.5 in")),
])
pocket2 = body.newObject("PartDesign::Pocket", "Pocket001")
pocket2.Profile = sketch3
pocket2.Length = Q("2.5 in")

sketch4 = body.newObject("Sketcher::SketchObject", "Sketch003")
sketch4.AttachmentSupport = (doc.getObject("XZ_Plane"), [""])
sketch4.MapMode = "FlatFace"
sketch4.AttachmentOffset = App.Placement(App.Vector(0, 0, -1 * 25.4), App.Rotation())
sketch4.addGeometry([
    Part.Circle(App.Vector(25, 229, 0), App.Vector(0, 0, 1), 14),
    Part.Circle(App.Vector(25, 457, 0), App.Vector(0, 0, 1), 14),
], False)
sketch4.addConstraint([
    Sketcher.Constraint("Equal", 0, 1),
    Sketcher.Constraint("Vertical", 0, 3, 1, 3),
    Sketcher.Constraint("Diameter", 0, Q("1.125 in")),
    Sketcher.Constraint("DistanceX", -1, 1, 0, 3, Q("1 in")),
    Sketcher.Constraint("DistanceY", -1, 1, 0, 3, Q("9 in")),
    Sketcher.Constraint("DistanceY", -1, 1, 1, 3, Q("18 in")),
])
doc.recompute()
hole = body.newObject("PartDesign::Hole", "Hole")
hole.Profile = sketch4
hole.ThreadType = "None"
hole.Diameter = Q("1.125 in")
hole.DepthType = "ThroughAll"
hole.Reversed = True

sketch5 = body.newObject("Sketcher::SketchObject", "Sketch004")
sketch5.AttachmentSupport = (doc.getObject("XZ_Plane"), [""])
sketch5.MapMode = "FlatFace"
sketch5.AttachmentOffset = App.Placement(App.Vector(0, 0, -1 * 25.4), App.Rotation())
sketch5.addGeometry([
    Part.Circle(App.Vector(25.4, 381, 0), App.Vector(0, 0, 1), 12.7),
    Part.Circle(App.Vector(43.4, 363, 0), App.Vector(0, 0, 1), 2.6),
    Part.Circle(App.Vector(43.4, 399, 0), App.Vector(0, 0, 1), 2.6),
    Part.Circle(App.Vector(7.4, 399, 0), App.Vector(0, 0, 1), 2.6),
    Part.Circle(App.Vector(7.4, 363, 0), App.Vector(0, 0, 1), 2.6),
    Part.Circle(App.Vector(25.4, 271.1, 0), App.Vector(0, 0, 1), 12.7),
    Part.Circle(App.Vector(43.4, 253.1, 0), App.Vector(0, 0, 1), 2.6),
    Part.Circle(App.Vector(43.4, 289.1, 0), App.Vector(0, 0, 1), 2.6),
    Part.Circle(App.Vector(7.4, 289.1, 0), App.Vector(0, 0, 1), 2.6),
    Part.Circle(App.Vector(7.4, 253.1, 0), App.Vector(0, 0, 1), 2.6),
], False)
sketch5.addConstraint([
    Sketcher.Constraint("Equal", 1, 2),
    Sketcher.Constraint("Equal", 2, 3),
    Sketcher.Constraint("Equal", 3, 4),
    Sketcher.Constraint("Equal", 0, 5),
    Sketcher.Constraint("Equal", 4, 6),
    Sketcher.Constraint("Equal", 6, 7),
    Sketcher.Constraint("Equal", 7, 8),
    Sketcher.Constraint("Equal", 8, 9),
    Sketcher.Constraint("Horizontal", 2, 3, 3, 3),
    Sketcher.Constraint("Horizontal", 1, 3, 4, 3),
    Sketcher.Constraint("Horizontal", 7, 3, 8, 3),
    Sketcher.Constraint("Horizontal", 6, 3, 9, 3),
    Sketcher.Constraint("Vertical", 1, 3, 2, 3),
    Sketcher.Constraint("Vertical", 3, 3, 4, 3),
    Sketcher.Constraint("Vertical", 0, 3, 5, 3),
    Sketcher.Constraint("Vertical", 2, 3, 6, 3),
    Sketcher.Constraint("Vertical", 6, 3, 7, 3),
    Sketcher.Constraint("Vertical", 4, 3, 8, 3),
    Sketcher.Constraint("Vertical", 8, 3, 9, 3),
    Sketcher.Constraint("Diameter", 0, Q("1 in")),
    Sketcher.Constraint("Diameter", 1, Q("0.207 in")),
    Sketcher.Constraint("DistanceX", -1, 1, 0, 3, Q("1 in")),
    Sketcher.Constraint("DistanceY", -1, 1, 0, 3, Q("15 in")),
    Sketcher.Constraint("DistanceY", -1, 1, 5, 3, Q("10.673 in")),
    Sketcher.Constraint("DistanceY", 6, 3, 1, 3, Q("4.327 in")),
    Sketcher.Constraint("DistanceX", -1, 1, 1, 3, 43.360512),
    Sketcher.Constraint("DistanceY", -1, 1, 1, 3, 363.039488),
    Sketcher.Constraint("DistanceY", -1, 1, 2, 3, 398.960512),
    Sketcher.Constraint("DistanceX", -1, 1, 3, 3, 7.439488),
    Sketcher.Constraint("DistanceY", -1, 1, 7, 3, 289.054712),
])
pocket3 = body.newObject("PartDesign::Pocket", "Pocket002")
pocket3.Profile = sketch5
pocket3.Type = "ThroughAll"
pocket3.Reversed = True

sketch6 = body.newObject("Sketcher::SketchObject", "Sketch005")
sketch6.AttachmentSupport = (doc.getObject("YZ_Plane"), [""])
sketch6.MapMode = "FlatFace"
sketch6.addGeometry([
    Part.LineSegment(App.Vector(25, 508, 0), App.Vector(0, 483, 0)),
    Part.LineSegment(App.Vector(0, 483, 0), App.Vector(0, 508, 0)),
    Part.LineSegment(App.Vector(0, 508, 0), App.Vector(25, 508, 0)),
], False)
sketch6.addConstraint([
    Sketcher.Constraint("Coincident", 0, 2, 1, 1),
    Sketcher.Constraint("Coincident", 1, 2, 2, 1),
    Sketcher.Constraint("Coincident", 2, 2, 0, 1),
    Sketcher.Constraint("Vertical", 1),
    Sketcher.Constraint("Horizontal", 2),
    Sketcher.Constraint("PointOnObject", 0, 2, -2),
    Sketcher.Constraint("Equal", 2, 1),
    Sketcher.Constraint("DistanceX", 2, 1, 2, 2, Q("1 in")),
    Sketcher.Constraint("DistanceY", -1, 1, 0, 2, Q("19 in")),
])
pocket4 = body.newObject("PartDesign::Pocket", "Pocket003")
pocket4.Profile = sketch6
pocket4.Type = "ThroughAll"
pocket4.Reversed = True

sketch7 = body.newObject("Sketcher::SketchObject", "Sketch006")
sketch7.AttachmentSupport = (doc.getObject("XZ_Plane"), [""])
sketch7.MapMode = "FlatFace"
sketch7.AttachmentOffset = App.Placement(App.Vector(0, 0, -1 * 25.4), App.Rotation())
sketch7.addGeometry(Part.Circle(App.Vector(38.1, 482.6, 0), App.Vector(0, 0, 1), 2), False)
sketch7.addConstraint([
    Sketcher.Constraint("Diameter", 0, Q("0.159 in")),
    Sketcher.Constraint("DistanceY", -1, 1, 0, 3, Q("19 in")),
    Sketcher.Constraint("DistanceX", -1, 1, 0, 3, Q("1.5 in")),
])
pocket5 = body.newObject("PartDesign::Pocket", "Pocket004")
pocket5.Profile = sketch7
pocket5.Type = "UpToFirst"
pocket5.Reversed = True

sketch8 = body.newObject("Sketcher::SketchObject", "Sketch007")
sketch8.AttachmentSupport = (doc.getObject("XZ_Plane"), [""])
sketch8.MapMode = "FlatFace"
sketch8.AttachmentOffset = App.Placement(App.Vector(0, 0, -1 * 25.4), App.Rotation())
sketch8.addGeometry(Part.Circle(App.Vector(12.7, 482.6, 0), App.Vector(0, 0, 1), 2), False)
sketch8.addConstraint([
    Sketcher.Constraint("Diameter", 0, Q("0.159 in")),
    Sketcher.Constraint("DistanceY", -1, 1, 0, 3, Q("19 in")),
    Sketcher.Constraint("DistanceX", -1, 1, 0, 3, Q("0.5 in")),
])
pocket6 = body.newObject("PartDesign::Pocket", "Pocket005")
pocket6.Profile = sketch8
pocket6.Type = "UpToFirst"
pocket6.Reversed = True

doc.recompute()
